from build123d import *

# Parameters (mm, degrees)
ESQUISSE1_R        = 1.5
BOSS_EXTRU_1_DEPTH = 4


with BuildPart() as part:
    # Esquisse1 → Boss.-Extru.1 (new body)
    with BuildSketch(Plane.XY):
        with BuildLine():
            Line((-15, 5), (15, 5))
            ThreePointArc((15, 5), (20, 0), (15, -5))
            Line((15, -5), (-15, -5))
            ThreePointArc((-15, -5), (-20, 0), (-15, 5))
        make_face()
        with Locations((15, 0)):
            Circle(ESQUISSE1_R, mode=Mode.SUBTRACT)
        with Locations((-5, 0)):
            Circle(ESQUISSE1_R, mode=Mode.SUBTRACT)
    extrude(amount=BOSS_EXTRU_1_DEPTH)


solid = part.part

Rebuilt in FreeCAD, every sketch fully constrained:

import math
import FreeCAD as App
import Part
import Sketcher

doc = App.newDocument("Part")
body = doc.addObject("PartDesign::Body", "Body")

# Sketch on XY plane
sketch1 = body.newObject("Sketcher::SketchObject", "Sketch")
sketch1.AttachmentSupport = (doc.getObject("XY_Plane"), [""])
sketch1.MapMode = "FlatFace"
sketch1.addGeometry(Part.LineSegment(App.Vector(15, 5, 0), App.Vector(-15, 5, 0)), False)
sketch1.addGeometry(Part.ArcOfCircle(Part.Circle(App.Vector(-15, 0, 0), App.Vector(0, 0, 1), 5), math.radians(90), math.radians(270)), False)
sketch1.addGeometry(Part.LineSegment(App.Vector(-15, -5, 0), App.Vector(15, -5, 0)), False)
sketch1.addGeometry(Part.ArcOfCircle(Part.Circle(App.Vector(15, 0, 0), App.Vector(0, 0, 1), 5), math.radians(-90), math.radians(90)), False)
sketch1.addGeometry(Part.Circle(App.Vector(15, 0, 0), App.Vector(0, 0, 1), 1.5), False)
sketch1.addGeometry(Part.Circle(App.Vector(-5, 0, 0), App.Vector(0, 0, 1), 1.5), False)
sketch1.addConstraint(Sketcher.Constraint("Tangent", 0, 2, 1, 1))
sketch1.addConstraint(Sketcher.Constraint("Tangent", 1, 2, 2, 1))
sketch1.addConstraint(Sketcher.Constraint("Tangent", 2, 2, 3, 1))
sketch1.addConstraint(Sketcher.Constraint("Tangent", 3, 2, 0, 1))
sketch1.addConstraint(Sketcher.Constraint("Horizontal", 0))
sketch1.addConstraint(Sketcher.Constraint("Horizontal", 2))
sketch1.addConstraint(Sketcher.Constraint("Coincident", 4, 3, 3, 3))
sketch1.addConstraint(Sketcher.Constraint("Equal", 4, 5))
sketch1.addConstraint(Sketcher.Constraint("Symmetric", 1, 3, 3, 3, -1, 1))
sketch1.addConstraint(Sketcher.Constraint("PointOnObject", 5, 3, -1))
sketch1.addConstraint(Sketcher.Constraint("Diameter", 4, 3.0))
sketch1.addConstraint(Sketcher.Constraint("Radius", 1, 5.0))
sketch1.addConstraint(Sketcher.Constraint("DistanceX", 0, 2, 0, 1, 30.0))
sketch1.addConstraint(Sketcher.Constraint("DistanceX", 5, 3, -1, 1, 5.0))
pad1 = body.newObject("PartDesign::Pad", "Pad")
pad1.Profile = sketch1
pad1.Length = 4

doc.recompute()
